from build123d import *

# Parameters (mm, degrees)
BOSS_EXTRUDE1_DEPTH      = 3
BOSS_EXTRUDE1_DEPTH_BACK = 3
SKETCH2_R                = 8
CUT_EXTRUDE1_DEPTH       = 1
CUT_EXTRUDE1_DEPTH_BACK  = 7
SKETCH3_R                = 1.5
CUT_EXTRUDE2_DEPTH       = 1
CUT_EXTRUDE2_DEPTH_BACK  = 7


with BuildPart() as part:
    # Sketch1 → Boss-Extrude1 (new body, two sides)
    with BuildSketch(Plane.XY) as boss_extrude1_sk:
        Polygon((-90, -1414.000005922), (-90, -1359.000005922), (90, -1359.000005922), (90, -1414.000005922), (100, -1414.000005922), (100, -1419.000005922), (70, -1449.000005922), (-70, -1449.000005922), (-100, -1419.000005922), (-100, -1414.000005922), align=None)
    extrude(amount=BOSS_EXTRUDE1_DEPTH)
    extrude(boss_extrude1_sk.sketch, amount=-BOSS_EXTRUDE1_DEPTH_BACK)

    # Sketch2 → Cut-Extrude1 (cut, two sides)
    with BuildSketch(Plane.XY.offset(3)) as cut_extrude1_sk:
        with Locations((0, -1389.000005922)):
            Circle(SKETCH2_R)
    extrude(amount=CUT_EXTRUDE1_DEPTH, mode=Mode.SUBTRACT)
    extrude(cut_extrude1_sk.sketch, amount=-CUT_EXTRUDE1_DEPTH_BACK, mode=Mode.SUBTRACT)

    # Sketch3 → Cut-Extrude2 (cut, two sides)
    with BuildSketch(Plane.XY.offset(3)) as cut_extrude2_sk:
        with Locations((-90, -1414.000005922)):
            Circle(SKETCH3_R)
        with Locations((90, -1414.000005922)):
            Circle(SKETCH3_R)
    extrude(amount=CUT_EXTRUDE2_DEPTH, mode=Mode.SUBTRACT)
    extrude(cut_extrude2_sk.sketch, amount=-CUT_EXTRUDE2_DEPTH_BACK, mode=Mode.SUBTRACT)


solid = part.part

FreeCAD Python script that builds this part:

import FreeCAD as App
import Part
import Sketcher


def add_polygon(sketch, points):
    """Adds a closed chain of lines whose ends are joined by coincident constraints."""
    first, n = sketch.GeometryCount, len(points)
    for a, b in zip(points, points[1:] + points[:1]):
        sketch.addGeometry(Part.LineSegment(App.Vector(*a, 0), App.Vector(*b, 0)), False)
    for i in range(n):
        sketch.addConstraint(Sketcher.Constraint("Coincident", first + i, 2, first + (i + 1) % n, 1))

doc = App.newDocument("Part")
body = doc.addObject("PartDesign::Body", "Body")

# Sketch on XY plane
sketch1 = doc.addObject("Sketcher::SketchObject", "Sketch")
body.addObject(sketch1)
sketch1.AttachmentSupport = (doc.XY_Plane, [""])
sketch1.MapMode = "FlatFace"
add_polygon(sketch1, [(-90, -1359.000006), (-90, -1414.000006), (-100, -1414.000006), (-100, -1419.000006), (-70, -1449.000006), (70, -1449.000006), (100, -1419.000006), (100, -1414.000006), (90, -1414.000006), (90, -1359.000006)])  # lines 0-9
sketch1.addConstraint([
    Sketcher.Constraint("Vertical", 0),
    Sketcher.Constraint("Horizontal", 1),
    Sketcher.Constraint("Vertical", 2),
    Sketcher.Constraint("Horizontal", 4),
    Sketcher.Constraint("Vertical", 6),
    Sketcher.Constraint("Horizontal", 7),
    Sketcher.Constraint("Vertical", 8),
    Sketcher.Constraint("Horizontal", 9),
    Sketcher.Constraint("Symmetric", 2, 2, 5, 2, -2),
    Sketcher.Constraint("Symmetric", 0, 2, 7, 2, -2),
    Sketcher.Constraint("Perpendicular", 3, 5),
    Sketcher.Constraint("Equal", 3, 5),
    Sketcher.Constraint("DistanceX", 1, 2, 1, 1, 10.0),
    Sketcher.Constraint("DistanceX", 4, 1, 4, 2, 140.0),
    Sketcher.Constraint("DistanceX", 9, 2, 9, 1, 180.0),
    Sketcher.Constraint("DistanceY", 0, 2, 0, 1, 55.0),
    Sketcher.Constraint("DistanceY", 2, 2, 2, 1, 5.0),
    Sketcher.Constraint("DistanceY", 0, 2, -1, 1, 1414.000006),
])
pad1 = doc.addObject("PartDesign::Pad", "Pad")
body.addObject(pad1)
pad1.Profile = sketch1
pad1.Type = "TwoLengths"
pad1.Length = 3
pad1.Length2 = 3

# Sketch on XY plane
sketch2 = doc.addObject("Sketcher::SketchObject", "Sketch001")
body.addObject(sketch2)
sketch2.AttachmentSupport = (doc.XY_Plane, [""])
sketch2.MapMode = "FlatFace"
sketch2.AttachmentOffset = App.Placement(App.Vector(0, 0, 3), App.Rotation())
sketch2.addGeometry(Part.Circle(App.Vector(0, -1389.000006, 0), App.Vector(0, 0, 1), 8), False)
sketch2.addConstraint([
    Sketcher.Constraint("PointOnObject", 0, 3, -2),
    Sketcher.Constraint("Diameter", 0, 16.0),
    Sketcher.Constraint("DistanceY", 0, 3, -1, 1, 1389.000006),
])
pocket1 = doc.addObject("PartDesign::Pocket", "Pocket")
body.addObject(pocket1)
pocket1.Profile = sketch2
pocket1.Type = "ThroughAll"
pocket1.Midplane = True

# Sketch on XY plane
sketch3 = doc.addObject("Sketcher::SketchObject", "Sketch002")
body.addObject(sketch3)
sketch3.AttachmentSupport = (doc.XY_Plane, [""])
sketch3.MapMode = "FlatFace"
sketch3.AttachmentOffset = App.Placement(App.Vector(0, 0, 3), App.Rotation())
sketch3.addGeometry([
    Part.Circle(App.Vector(-90, -1414.000006, 0), App.Vector(0, 0, 1), 1.5),
    Part.Circle(App.Vector(90, -1414.000006, 0), App.Vector(0, 0, 1), 1.5),
], False)
sketch3.addConstraint([
    Sketcher.Constraint("Equal", 0, 1),
    Sketcher.Constraint("Symmetric", 0, 3, 1, 3, -2),
    Sketcher.Constraint("Diameter", 0, 3.0),
    Sketcher.Constraint("DistanceX", 0, 3, -1, 1, 90.0),
    Sketcher.Constraint("DistanceY", 0, 3, -1, 1, 1414.000006),
])
pocket2 = doc.addObject("PartDesign::Pocket", "Pocket001")
body.addObject(pocket2)
pocket2.Profile = sketch3
pocket2.Type = "ThroughAll"
pocket2.Midplane = True

doc.recompute()
